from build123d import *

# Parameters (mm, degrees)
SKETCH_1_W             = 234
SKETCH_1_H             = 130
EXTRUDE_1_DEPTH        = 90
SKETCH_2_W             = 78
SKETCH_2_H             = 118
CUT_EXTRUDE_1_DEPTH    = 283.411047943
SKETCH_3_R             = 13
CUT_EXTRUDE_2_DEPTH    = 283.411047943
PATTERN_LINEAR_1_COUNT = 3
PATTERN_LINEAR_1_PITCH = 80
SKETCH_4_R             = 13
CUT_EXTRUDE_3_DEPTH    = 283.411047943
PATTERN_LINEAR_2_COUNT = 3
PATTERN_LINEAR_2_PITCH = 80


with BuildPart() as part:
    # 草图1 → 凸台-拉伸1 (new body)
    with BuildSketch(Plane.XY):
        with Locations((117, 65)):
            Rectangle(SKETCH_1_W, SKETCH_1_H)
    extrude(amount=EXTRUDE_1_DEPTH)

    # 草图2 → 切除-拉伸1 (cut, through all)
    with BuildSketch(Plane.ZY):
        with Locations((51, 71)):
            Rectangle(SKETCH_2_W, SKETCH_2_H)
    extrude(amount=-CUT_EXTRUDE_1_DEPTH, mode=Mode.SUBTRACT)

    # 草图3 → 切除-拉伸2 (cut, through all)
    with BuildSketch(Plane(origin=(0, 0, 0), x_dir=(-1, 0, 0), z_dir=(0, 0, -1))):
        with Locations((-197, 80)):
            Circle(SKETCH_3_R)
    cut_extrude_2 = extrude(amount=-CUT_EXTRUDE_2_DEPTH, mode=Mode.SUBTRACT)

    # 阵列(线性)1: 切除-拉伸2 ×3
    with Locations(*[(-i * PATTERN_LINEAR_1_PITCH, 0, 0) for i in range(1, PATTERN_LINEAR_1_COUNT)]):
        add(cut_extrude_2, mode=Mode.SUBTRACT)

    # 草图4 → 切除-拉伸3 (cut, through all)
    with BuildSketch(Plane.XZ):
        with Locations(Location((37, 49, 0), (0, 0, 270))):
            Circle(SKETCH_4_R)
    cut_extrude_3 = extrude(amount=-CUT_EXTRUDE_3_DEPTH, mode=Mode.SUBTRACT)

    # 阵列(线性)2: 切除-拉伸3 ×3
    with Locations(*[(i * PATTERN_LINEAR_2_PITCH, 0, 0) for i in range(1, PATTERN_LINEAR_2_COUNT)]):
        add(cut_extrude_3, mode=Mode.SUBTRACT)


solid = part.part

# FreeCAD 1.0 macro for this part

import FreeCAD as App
import Part
import Sketcher
Q = App.Units.Quantity

doc = App.newDocument("Part")
params = doc.addObject("Spreadsheet::Sheet", "Params")
for row, (alias, value) in enumerate([
    ("sketch1_width", "234 mm"),
    ("sketch1_height", "130 mm"),
    ("pad1_length", "90 mm"),
    ("sketch2_width", "118 mm"),
    ("sketch2_height", "78 mm"),
    ("sketch3_diameter", "26 mm"),
    ("linearpattern_pitch", "80 mm"),
    ("sketch4_diameter", "26 mm"),
    ("linearpattern2_pitch", "80 mm"),
], start=1):
    params.set(f"A{row}", alias)
    params.set(f"B{row}", "=" + value)
    params.setAlias(f"B{row}", alias)

body = doc.addObject("PartDesign::Body", "Body")

# Sketch on XY plane
sketch1 = body.newObject("Sketcher::SketchObject", "Sketch")
sketch1.AttachmentSupport = (doc.getObject("XY_Plane"), [""])
sketch1.MapMode = "FlatFace"
sketch1.addGeometry([
    Part.LineSegment(App.Vector(0, 130, 0), App.Vector(0, 0, 0)),
    Part.LineSegment(App.Vector(0, 0, 0), App.Vector(234, 0, 0)),
    Part.LineSegment(App.Vector(234, 0, 0), App.Vector(234, 130, 0)),
    Part.LineSegment(App.Vector(234, 130, 0), App.Vector(0, 130, 0)),
], False)
sketch1.addConstraint([
    Sketcher.Constraint("Coincident", 0, 2, 1, 1),
    Sketcher.Constraint("Coincident", 1, 2, 2, 1),
    Sketcher.Constraint("Coincident", 2, 2, 3, 1),
    Sketcher.Constraint("Coincident", 3, 2, 0, 1),
    Sketcher.Constraint("Vertical", 0),
    Sketcher.Constraint("Horizontal", 1),
    Sketcher.Constraint("Vertical", 2),
    Sketcher.Constraint("Horizontal", 3),
    Sketcher.Constraint("Coincident", 0, 2, -1, 1),
    Sketcher.Constraint("DistanceX", 1, 1, 1, 2, Q("234 mm")),
    Sketcher.Constraint("DistanceY", 0, 2, 0, 1, Q("130 mm")),
])
sketch1.setExpression("Constraints[9]", "Params.sketch1_width")
sketch1.setExpression("Constraints[10]", "Params.sketch1_height")
pad1 = body.newObject("PartDesign::Pad", "Pad")
pad1.Profile = sketch1
pad1.setExpression("Length", "Params.pad1_length")

# Sketch on YZ plane
sketch2 = body.newObject("Sketcher::SketchObject", "Sketch001")
sketch2.AttachmentSupport = (doc.getObject("YZ_Plane"), [""])
sketch2.MapMode = "FlatFace"
sketch2.addGeometry([
    Part.LineSegment(App.Vector(130, 12, 0), App.Vector(12, 12, 0)),
    Part.LineSegment(App.Vector(12, 12, 0), App.Vector(12, 90, 0)),
    Part.LineSegment(App.Vector(12, 90, 0), App.Vector(130, 90, 0)),
    Part.LineSegment(App.Vector(130, 90, 0), App.Vector(130, 12, 0)),
], False)
sketch2.addConstraint([
    Sketcher.Constraint("Coincident", 0, 2, 1, 1),
    Sketcher.Constraint("Coincident", 1, 2, 2, 1),
    Sketcher.Constraint("Coincident", 2, 2, 3, 1),
    Sketcher.Constraint("Coincident", 3, 2, 0, 1),
    Sketcher.Constraint("Horizontal", 0),
    Sketcher.Constraint("Vertical", 1),
    Sketcher.Constraint("Horizontal", 2),
    Sketcher.Constraint("Vertical", 3),
    Sketcher.Constraint("DistanceX", 0, 2, 0, 1, Q("118 mm")),
    Sketcher.Constraint("DistanceY", 1, 1, 1, 2, Q("78 mm")),
    Sketcher.Constraint("DistanceX", -1, 1, 0, 2, Q("12 mm")),
    Sketcher.Constraint("DistanceY", -1, 1, 0, 2, Q("12 mm")),
])
sketch2.setExpression("Constraints[8]", "Params.sketch2_width")
sketch2.setExpression("Constraints[9]", "Params.sketch2_height")
pocket1 = body.newObject("PartDesign::Pocket", "Pocket")
pocket1.Profile = sketch2
pocket1.Type = "ThroughAll"
pocket1.Reversed = True

# Sketch on XY plane
sketch3 = body.newObject("Sketcher::SketchObject", "Sketch002")
sketch3.AttachmentSupport = (doc.getObject("XY_Plane"), [""])
sketch3.MapMode = "FlatFace"
sketch3.addGeometry(Part.Circle(App.Vector(197, 80, 0), App.Vector(0, 0, 1), 13), False)
sketch3.addConstraint([
    Sketcher.Constraint("Diameter", 0, Q("26 mm")),
    Sketcher.Constraint("DistanceX", -1, 1, 0, 3, Q("197 mm")),
    Sketcher.Constraint("DistanceY", -1, 1, 0, 3, Q("80 mm")),
])
sketch3.setExpression("Constraints[0]", "Params.sketch3_diameter")
pocket2 = body.newObject("PartDesign::Pocket", "Pocket001")
pocket2.Profile = sketch3
pocket2.Type = "ThroughAll"
pocket2.Reversed = True
doc.recompute()

linearpattern = body.newObject("PartDesign::LinearPattern", "LinearPattern")
linearpattern.Originals = [pocket2]
linearpattern.Direction = (doc.getObject("X_Axis"), [""])
linearpattern.Mode = "offset"
linearpattern.setExpression("Offset", "Params.linearpattern_pitch")
linearpattern.Occurrences = 3
linearpattern.Reversed = True
body.Tip = linearpattern

# Sketch on XZ plane
sketch4 = body.newObject("Sketcher::SketchObject", "Sketch003")
sketch4.AttachmentSupport = (doc.getObject("XZ_Plane"), [""])
sketch4.MapMode = "FlatFace"
sketch4.addGeometry(Part.Circle(App.Vector(37, 49, 0), App.Vector(0, 0, 1), 13), False)
sketch4.addConstraint([
    Sketcher.Constraint("Diameter", 0, Q("26 mm")),
    Sketcher.Constraint("DistanceX", -1, 1, 0, 3, Q("37 mm")),
    Sketcher.Constraint("DistanceY", -1, 1, 0, 3, Q("49 mm")),
])
sketch4.setExpression("Constraints[0]", "Params.sketch4_diameter")
pocket3 = body.newObject("PartDesign::Pocket", "Pocket002")
pocket3.Profile = sketch4
pocket3.Type = "ThroughAll"
doc.recompute()

linearpattern2 = body.newObject("PartDesign::LinearPattern", "LinearPattern001")
linearpattern2.Originals = [pocket3]
linearpattern2.Direction = (doc.getObject("X_Axis"), [""])
linearpattern2.Mode = "offset"
linearpattern2.setExpression("Offset", "Params.linearpattern2_pitch")
linearpattern2.Occurrences = 3
body.Tip = linearpattern2

doc.recompute()
